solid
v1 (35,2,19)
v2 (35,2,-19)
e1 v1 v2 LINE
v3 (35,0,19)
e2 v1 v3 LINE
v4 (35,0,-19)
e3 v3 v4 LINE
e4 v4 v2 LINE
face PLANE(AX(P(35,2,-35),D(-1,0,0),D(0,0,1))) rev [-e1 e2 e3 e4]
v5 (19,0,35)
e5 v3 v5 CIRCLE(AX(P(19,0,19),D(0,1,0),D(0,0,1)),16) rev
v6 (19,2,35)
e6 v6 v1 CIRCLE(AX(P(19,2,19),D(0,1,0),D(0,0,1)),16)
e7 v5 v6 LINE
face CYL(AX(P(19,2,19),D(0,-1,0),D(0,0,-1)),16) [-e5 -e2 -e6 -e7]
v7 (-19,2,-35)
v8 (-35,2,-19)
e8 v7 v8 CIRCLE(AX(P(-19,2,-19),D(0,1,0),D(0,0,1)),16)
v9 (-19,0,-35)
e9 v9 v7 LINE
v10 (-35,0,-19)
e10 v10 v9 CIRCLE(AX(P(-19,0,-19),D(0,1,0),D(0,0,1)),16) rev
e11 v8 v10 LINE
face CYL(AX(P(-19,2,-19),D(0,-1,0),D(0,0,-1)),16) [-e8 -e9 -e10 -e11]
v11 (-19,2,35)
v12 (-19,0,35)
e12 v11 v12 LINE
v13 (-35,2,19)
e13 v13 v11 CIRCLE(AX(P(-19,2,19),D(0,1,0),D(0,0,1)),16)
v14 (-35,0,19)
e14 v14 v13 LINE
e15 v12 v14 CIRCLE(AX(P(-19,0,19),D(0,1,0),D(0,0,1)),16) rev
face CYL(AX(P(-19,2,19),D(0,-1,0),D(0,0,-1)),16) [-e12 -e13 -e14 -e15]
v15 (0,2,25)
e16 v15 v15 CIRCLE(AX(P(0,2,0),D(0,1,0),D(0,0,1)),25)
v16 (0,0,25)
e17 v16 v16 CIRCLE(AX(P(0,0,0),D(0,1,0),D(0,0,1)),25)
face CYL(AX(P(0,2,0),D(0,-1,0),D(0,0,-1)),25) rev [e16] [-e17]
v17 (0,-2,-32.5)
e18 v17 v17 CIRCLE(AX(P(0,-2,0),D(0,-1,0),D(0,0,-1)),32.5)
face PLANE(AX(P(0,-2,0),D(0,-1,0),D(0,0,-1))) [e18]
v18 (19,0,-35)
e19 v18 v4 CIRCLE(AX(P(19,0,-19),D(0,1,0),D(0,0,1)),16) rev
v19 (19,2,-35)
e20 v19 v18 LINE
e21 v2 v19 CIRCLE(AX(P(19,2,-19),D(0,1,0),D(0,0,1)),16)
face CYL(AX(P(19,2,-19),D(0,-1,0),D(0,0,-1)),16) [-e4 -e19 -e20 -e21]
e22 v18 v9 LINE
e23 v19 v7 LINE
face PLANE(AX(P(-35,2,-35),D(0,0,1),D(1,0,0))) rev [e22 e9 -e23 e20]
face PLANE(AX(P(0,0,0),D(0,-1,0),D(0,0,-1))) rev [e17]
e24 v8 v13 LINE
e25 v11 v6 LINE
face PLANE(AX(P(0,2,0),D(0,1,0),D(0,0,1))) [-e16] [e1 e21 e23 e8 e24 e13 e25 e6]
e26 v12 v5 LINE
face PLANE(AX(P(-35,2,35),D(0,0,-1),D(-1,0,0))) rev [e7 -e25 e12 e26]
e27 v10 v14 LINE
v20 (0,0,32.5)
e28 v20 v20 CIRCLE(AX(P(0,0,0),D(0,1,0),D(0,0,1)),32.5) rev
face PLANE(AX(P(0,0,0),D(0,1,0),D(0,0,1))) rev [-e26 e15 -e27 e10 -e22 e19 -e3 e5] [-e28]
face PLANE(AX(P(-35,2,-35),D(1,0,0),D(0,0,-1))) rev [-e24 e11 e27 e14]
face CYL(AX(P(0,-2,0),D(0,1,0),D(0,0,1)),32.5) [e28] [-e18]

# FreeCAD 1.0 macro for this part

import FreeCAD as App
import Part
import Sketcher

V = App.Vector


def edges_at(feature, points):
    """Names of the edges that pass closest to the given points."""
    edges = feature.Shape.Edges
    near = lambda p: min(range(len(edges)), key=lambda i: edges[i].distToShape(Part.Vertex(*p))[0])
    return sorted({f"Edge{near(p) + 1}" for p in points})


def add_polygon(sketch, points):
    """Adds a closed chain of lines whose ends are joined by coincident constraints."""
    first, n = sketch.GeometryCount, len(points)
    for a, b in zip(points, points[1:] + points[:1]):
        sketch.addGeometry(Part.LineSegment(App.Vector(*a, 0), App.Vector(*b, 0)), False)
    for i in range(n):
        sketch.addConstraint(Sketcher.Constraint("Coincident", first + i, 2, first + (i + 1) % n, 1))

doc = App.newDocument("Part")
body = doc.addObject("PartDesign::Body", "Body")

# Sketch on XZ plane
sketch1 = body.newObject("Sketcher::SketchObject", "Sketch")
sketch1.AttachmentSupport = (doc.getObject("XZ_Plane"), [""])
sketch1.MapMode = "FlatFace"
add_polygon(sketch1, [(-35, -35), (-35, 35), (35, 35), (35, -35)])  # lines 0-3
sketch1.addGeometry(Part.Circle(V(0, 0, 0), V(0, 0, 1), 25), False)  # 4
sketch1.addConstraint(Sketcher.Constraint("Vertical", 0))
sketch1.addConstraint(Sketcher.Constraint("Horizontal", 1))
sketch1.addConstraint(Sketcher.Constraint("Vertical", 2))
sketch1.addConstraint(Sketcher.Constraint("Horizontal", 3))
sketch1.addConstraint(Sketcher.Constraint("Coincident", 4, 3, -1, 1))
sketch1.addConstraint(Sketcher.Constraint("Symmetric", 0, 2, 2, 2, -1, 1))
sketch1.addConstraint(Sketcher.Constraint("Equal", 3, 0))
sketch1.addConstraint(Sketcher.Constraint("Diameter", 4, 50.0))
sketch1.addConstraint(Sketcher.Constraint("DistanceX", 1, 1, 1, 2, 70.0))
pad1 = body.newObject("PartDesign::Pad", "Pad")
pad1.Profile = sketch1
pad1.Length = 2
pad1.Reversed = True
doc.recompute()

fillet = body.newObject("PartDesign::Fillet", "Fillet")
fillet.Base = (pad1, edges_at(pad1, [
    (35, 1, 35),
    (-35, 1, 35),
    (-35, 1, -35),
    (35, 1, -35),
]))
fillet.Radius = 16

# Sketch on XZ plane
sketch2 = body.newObject("Sketcher::SketchObject", "Sketch001")
sketch2.AttachmentSupport = (doc.getObject("XZ_Plane"), [""])
sketch2.MapMode = "FlatFace"
sketch2.addGeometry(Part.Circle(V(0, 0, 0), V(0, 0, 1), 32.5), False)
sketch2.addConstraint(Sketcher.Constraint("Coincident", 0, 3, -1, 1))
sketch2.addConstraint(Sketcher.Constraint("Diameter", 0, 65.0))
pad2 = body.newObject("PartDesign::Pad", "Pad001")
pad2.Profile = sketch2
pad2.Length = 2

doc.recompute()
